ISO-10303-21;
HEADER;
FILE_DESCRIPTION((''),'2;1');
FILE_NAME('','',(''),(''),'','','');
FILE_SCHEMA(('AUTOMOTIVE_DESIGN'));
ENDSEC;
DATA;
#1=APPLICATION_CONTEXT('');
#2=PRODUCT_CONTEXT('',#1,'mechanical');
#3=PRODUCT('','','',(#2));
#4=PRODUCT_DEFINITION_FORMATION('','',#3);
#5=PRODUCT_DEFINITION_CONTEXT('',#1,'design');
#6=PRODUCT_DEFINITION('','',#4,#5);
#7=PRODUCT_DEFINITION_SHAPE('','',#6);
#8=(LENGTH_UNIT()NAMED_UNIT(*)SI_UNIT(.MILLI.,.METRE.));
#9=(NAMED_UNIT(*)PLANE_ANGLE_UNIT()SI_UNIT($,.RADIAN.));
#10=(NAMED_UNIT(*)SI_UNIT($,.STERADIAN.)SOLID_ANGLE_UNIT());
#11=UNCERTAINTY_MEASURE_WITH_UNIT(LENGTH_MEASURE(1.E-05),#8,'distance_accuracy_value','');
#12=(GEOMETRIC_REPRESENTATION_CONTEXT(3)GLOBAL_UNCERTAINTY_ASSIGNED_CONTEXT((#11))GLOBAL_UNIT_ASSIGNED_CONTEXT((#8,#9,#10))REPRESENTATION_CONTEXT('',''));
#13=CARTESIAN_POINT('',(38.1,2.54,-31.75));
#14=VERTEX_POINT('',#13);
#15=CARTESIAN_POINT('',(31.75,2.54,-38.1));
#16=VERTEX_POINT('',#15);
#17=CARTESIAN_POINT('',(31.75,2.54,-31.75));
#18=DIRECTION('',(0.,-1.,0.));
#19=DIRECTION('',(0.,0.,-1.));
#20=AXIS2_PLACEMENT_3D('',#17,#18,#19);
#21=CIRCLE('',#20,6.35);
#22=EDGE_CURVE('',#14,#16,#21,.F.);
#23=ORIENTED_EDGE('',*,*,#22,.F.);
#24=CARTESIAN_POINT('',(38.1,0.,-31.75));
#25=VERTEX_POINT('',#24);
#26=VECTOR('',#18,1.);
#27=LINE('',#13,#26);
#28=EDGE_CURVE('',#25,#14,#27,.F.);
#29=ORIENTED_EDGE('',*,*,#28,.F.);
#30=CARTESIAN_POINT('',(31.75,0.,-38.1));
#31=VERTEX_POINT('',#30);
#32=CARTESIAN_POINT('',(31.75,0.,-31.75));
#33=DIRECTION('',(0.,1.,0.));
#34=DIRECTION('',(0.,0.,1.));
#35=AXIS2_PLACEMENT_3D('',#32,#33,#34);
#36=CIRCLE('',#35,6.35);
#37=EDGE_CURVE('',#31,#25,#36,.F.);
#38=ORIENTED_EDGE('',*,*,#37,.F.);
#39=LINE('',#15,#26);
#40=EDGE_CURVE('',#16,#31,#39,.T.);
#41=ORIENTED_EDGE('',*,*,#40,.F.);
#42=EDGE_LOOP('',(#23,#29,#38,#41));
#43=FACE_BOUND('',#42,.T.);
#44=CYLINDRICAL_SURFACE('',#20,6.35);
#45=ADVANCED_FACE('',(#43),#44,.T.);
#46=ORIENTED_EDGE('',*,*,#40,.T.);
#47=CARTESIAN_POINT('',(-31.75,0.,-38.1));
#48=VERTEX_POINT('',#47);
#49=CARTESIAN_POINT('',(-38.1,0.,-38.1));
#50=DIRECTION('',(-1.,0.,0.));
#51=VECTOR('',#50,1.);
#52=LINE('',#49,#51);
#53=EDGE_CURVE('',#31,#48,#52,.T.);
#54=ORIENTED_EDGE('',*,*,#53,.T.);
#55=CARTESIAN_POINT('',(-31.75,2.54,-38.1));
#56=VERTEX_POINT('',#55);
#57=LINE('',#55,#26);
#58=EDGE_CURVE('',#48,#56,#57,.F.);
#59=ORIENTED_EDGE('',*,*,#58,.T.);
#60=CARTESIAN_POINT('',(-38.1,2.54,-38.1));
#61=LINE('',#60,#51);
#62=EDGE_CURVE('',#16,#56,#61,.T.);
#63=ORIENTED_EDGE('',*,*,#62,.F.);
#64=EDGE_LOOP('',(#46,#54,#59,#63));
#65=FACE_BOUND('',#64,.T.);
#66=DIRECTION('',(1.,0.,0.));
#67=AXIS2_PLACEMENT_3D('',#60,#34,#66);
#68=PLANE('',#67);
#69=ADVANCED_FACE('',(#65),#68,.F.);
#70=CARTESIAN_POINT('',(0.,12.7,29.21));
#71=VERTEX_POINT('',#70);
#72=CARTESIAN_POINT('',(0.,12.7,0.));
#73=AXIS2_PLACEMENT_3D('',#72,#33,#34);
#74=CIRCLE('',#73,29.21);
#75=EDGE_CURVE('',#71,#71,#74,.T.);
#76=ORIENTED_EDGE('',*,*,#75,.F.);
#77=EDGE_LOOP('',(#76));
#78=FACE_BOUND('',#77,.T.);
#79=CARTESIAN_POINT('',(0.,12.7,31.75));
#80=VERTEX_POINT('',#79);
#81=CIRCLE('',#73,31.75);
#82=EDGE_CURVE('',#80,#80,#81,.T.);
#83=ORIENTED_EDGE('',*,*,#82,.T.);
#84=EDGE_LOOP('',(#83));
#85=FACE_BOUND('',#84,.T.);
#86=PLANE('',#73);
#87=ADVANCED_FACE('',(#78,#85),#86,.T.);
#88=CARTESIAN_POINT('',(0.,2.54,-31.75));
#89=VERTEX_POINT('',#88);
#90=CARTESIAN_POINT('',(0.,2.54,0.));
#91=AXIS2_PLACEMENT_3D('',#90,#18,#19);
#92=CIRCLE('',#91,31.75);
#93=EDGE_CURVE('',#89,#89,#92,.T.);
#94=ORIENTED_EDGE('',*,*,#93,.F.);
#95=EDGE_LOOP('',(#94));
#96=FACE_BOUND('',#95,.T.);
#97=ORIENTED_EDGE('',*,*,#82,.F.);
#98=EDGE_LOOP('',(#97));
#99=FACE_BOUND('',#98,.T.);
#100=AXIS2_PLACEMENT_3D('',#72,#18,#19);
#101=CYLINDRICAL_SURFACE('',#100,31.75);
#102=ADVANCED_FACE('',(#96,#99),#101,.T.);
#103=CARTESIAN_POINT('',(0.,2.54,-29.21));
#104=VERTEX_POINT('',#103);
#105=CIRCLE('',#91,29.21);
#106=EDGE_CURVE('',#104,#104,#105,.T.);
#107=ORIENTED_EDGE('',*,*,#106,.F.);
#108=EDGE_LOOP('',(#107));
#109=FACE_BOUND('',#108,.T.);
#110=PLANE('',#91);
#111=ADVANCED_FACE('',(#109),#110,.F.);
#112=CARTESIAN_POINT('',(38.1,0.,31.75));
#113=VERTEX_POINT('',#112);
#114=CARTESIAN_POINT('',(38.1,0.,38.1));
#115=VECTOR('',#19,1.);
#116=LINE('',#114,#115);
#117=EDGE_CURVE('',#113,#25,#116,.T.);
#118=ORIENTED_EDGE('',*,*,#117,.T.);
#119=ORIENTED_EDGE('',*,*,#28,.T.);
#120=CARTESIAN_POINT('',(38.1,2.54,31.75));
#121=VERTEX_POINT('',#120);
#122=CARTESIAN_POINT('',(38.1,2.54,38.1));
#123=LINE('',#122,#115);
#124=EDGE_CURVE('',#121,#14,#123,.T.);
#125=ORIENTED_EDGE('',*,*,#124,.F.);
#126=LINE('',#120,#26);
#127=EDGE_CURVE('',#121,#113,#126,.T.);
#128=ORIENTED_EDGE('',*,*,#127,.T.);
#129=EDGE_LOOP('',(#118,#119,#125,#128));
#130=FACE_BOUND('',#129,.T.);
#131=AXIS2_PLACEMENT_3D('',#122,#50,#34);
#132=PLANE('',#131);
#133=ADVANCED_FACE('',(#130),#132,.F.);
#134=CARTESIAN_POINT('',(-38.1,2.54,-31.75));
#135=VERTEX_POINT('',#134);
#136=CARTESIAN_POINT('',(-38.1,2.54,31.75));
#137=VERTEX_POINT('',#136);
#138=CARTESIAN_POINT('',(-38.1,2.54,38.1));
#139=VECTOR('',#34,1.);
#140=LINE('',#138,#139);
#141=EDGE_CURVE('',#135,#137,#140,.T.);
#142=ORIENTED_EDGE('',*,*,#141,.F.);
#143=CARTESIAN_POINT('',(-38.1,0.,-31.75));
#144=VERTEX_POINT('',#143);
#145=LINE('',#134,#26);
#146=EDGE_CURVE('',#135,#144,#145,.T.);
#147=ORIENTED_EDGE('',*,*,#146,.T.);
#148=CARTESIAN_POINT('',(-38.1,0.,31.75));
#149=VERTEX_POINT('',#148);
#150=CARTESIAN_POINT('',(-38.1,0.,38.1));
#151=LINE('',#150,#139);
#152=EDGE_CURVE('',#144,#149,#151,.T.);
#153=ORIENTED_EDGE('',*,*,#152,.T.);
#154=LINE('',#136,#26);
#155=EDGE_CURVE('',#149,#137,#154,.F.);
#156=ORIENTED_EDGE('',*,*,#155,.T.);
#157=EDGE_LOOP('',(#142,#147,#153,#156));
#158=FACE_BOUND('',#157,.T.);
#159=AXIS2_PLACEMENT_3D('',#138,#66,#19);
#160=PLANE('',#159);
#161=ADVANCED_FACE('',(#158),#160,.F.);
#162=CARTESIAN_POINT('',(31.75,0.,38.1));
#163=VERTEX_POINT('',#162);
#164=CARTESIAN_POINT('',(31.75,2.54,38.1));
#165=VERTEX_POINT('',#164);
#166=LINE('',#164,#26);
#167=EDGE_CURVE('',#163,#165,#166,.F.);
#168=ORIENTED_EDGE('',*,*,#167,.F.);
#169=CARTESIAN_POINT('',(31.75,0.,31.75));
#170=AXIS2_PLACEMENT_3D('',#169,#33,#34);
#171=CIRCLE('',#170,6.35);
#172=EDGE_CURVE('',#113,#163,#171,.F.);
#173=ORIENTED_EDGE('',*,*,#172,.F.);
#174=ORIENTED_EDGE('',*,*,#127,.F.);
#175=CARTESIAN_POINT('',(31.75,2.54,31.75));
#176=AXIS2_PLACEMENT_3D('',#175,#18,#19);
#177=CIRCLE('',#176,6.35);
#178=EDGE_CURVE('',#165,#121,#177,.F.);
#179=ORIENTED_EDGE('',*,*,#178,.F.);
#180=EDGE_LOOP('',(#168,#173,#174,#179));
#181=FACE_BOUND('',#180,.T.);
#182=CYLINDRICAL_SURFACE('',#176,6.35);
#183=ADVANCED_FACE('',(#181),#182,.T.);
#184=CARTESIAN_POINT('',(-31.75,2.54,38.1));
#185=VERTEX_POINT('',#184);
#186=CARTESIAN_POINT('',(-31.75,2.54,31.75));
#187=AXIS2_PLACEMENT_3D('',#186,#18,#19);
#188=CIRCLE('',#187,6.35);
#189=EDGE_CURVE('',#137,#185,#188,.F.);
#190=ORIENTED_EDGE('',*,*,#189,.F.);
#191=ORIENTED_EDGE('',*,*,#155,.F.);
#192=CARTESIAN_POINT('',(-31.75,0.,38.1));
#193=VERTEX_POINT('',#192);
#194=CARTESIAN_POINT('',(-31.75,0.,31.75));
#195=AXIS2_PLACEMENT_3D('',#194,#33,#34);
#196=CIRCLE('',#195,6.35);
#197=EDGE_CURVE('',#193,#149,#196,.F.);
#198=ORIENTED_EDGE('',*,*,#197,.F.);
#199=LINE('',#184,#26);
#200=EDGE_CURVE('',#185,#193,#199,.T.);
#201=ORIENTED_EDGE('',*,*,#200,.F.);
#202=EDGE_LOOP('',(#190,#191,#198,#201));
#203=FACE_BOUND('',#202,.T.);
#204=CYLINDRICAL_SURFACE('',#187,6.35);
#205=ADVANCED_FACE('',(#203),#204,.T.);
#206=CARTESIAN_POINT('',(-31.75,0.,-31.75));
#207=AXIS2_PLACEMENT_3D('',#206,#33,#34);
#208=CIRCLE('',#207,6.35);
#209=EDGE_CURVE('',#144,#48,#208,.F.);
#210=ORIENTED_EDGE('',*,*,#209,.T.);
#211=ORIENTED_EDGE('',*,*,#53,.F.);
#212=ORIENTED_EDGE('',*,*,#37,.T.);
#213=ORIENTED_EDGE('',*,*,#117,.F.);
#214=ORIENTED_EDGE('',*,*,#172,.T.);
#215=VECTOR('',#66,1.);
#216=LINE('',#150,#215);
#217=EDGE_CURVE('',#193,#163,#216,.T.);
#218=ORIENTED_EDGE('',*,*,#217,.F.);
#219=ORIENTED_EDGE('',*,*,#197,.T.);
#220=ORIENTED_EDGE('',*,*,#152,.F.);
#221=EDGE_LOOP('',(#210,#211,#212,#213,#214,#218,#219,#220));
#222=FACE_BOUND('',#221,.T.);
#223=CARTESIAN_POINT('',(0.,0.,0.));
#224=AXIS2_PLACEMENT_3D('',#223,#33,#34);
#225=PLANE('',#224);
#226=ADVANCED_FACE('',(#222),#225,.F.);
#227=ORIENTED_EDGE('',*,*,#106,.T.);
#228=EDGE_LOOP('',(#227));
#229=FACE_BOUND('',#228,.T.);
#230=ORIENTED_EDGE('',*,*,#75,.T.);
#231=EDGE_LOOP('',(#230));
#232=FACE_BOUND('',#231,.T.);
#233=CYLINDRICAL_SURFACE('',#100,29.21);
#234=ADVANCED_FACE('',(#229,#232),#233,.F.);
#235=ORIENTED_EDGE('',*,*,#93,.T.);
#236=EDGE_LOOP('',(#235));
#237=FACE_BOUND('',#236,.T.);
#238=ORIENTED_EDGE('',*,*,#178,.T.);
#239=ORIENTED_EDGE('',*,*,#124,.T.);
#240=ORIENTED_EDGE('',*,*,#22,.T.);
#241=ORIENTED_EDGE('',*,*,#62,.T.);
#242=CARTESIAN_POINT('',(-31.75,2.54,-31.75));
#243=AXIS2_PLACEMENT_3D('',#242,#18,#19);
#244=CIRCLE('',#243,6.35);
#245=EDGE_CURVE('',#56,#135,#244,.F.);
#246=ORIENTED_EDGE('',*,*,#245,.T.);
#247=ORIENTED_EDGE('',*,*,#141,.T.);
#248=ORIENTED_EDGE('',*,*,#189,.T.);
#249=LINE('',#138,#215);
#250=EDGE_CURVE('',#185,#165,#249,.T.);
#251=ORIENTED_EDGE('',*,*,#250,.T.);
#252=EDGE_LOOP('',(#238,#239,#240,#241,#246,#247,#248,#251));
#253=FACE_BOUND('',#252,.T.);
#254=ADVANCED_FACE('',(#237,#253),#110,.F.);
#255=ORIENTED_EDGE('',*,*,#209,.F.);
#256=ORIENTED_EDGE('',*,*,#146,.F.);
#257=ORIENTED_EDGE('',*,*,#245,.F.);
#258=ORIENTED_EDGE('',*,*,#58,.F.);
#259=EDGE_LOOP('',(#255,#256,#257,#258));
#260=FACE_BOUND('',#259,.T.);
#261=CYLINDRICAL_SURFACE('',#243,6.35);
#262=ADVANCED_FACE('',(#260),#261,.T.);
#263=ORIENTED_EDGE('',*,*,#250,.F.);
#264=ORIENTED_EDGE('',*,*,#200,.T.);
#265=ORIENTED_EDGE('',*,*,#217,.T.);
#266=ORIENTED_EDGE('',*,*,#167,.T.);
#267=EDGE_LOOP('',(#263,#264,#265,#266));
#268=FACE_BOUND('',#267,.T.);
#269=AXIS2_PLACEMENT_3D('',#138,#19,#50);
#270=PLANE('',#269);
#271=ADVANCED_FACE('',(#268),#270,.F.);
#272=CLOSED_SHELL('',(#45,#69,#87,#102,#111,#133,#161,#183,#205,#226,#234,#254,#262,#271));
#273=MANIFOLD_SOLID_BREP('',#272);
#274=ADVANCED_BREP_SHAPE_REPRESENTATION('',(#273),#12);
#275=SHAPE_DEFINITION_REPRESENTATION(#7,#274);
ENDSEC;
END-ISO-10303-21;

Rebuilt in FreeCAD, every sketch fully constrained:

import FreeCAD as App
import Part
import Sketcher
from FreeCAD import Vector
Q = App.Units.Quantity


def edges_at(feature, points):
    """Names of the edges that pass closest to the given points."""
    edges = feature.Shape.Edges
    near = lambda p: min(range(len(edges)), key=lambda i: edges[i].distToShape(Part.Vertex(*p))[0])
    return sorted({f"Edge{near(p) + 1}" for p in points})


def add_polygon(sketch, points):
    """Adds a closed chain of lines whose ends are joined by coincident constraints."""
    first, n = sketch.GeometryCount, len(points)
    for a, b in zip(points, points[1:] + points[:1]):
        sketch.addGeometry(Part.LineSegment(App.Vector(*a, 0), App.Vector(*b, 0)), False)
    for i in range(n):
        sketch.addConstraint(Sketcher.Constraint("Coincident", first + i, 2, first + (i + 1) % n, 1))

doc = App.newDocument("Part")
body = doc.addObject("PartDesign::Body", "Body")

# Sketch on XZ plane
sketch1 = body.newObject("Sketcher::SketchObject", "Sketch")
sketch1.AttachmentSupport = (doc.getObject("XZ_Plane"), [""])
sketch1.MapMode = "FlatFace"
sketch1.addGeometry([
    Part.Circle(Vector(0, 0, 0), Vector(0, 0, 1), 32),
    Part.Circle(Vector(0, 0, 0), Vector(0, 0, 1), 29),
], False)
sketch1.addConstraint([
    Sketcher.Constraint("Coincident", 0, 3, -1, 1),
    Sketcher.Constraint("Coincident", 1, 3, -1, 1),
    Sketcher.Constraint("Diameter", 0, Q("2.5 in")),
    Sketcher.Constraint("Diameter", 1, Q("2.3 in")),
])
pad1 = body.newObject("PartDesign::Pad", "Pad")
pad1.Profile = sketch1
pad1.Length = Q("0.5 in")
pad1.Reversed = True

# Sketch on XZ plane
sketch2 = body.newObject("Sketcher::SketchObject", "Sketch001")
sketch2.AttachmentSupport = (doc.getObject("XZ_Plane"), [""])
sketch2.MapMode = "FlatFace"
add_polygon(sketch2, [(-38, -38), (-38, 38), (38, 38), (38, -38)])  # lines 0-3
sketch2.addConstraint([
    Sketcher.Constraint("Vertical", 0),
    Sketcher.Constraint("Horizontal", 1),
    Sketcher.Constraint("Vertical", 2),
    Sketcher.Constraint("Horizontal", 3),
    Sketcher.Constraint("Symmetric", 0, 2, 2, 2, -1, 1),
    Sketcher.Constraint("Equal", 3, 0),
    Sketcher.Constraint("DistanceX", 1, 1, 1, 2, Q("3 in")),
])
pad2 = body.newObject("PartDesign::Pad", "Pad001")
pad2.Profile = sketch2
pad2.Length = Q("0.1 in")
pad2.Reversed = True
doc.recompute()

fillet = body.newObject("PartDesign::Fillet", "Fillet")
fillet.Base = (pad2, edges_at(pad2, [
    (38.1, 1.27, 38.1),
    (38.1, 1.27, -38.1),
    (-38.1, 1.27, -38.1),
    (-38.1, 1.27, 38.1),
]))
fillet.Radius = Q("0.25 in")

doc.recompute()
